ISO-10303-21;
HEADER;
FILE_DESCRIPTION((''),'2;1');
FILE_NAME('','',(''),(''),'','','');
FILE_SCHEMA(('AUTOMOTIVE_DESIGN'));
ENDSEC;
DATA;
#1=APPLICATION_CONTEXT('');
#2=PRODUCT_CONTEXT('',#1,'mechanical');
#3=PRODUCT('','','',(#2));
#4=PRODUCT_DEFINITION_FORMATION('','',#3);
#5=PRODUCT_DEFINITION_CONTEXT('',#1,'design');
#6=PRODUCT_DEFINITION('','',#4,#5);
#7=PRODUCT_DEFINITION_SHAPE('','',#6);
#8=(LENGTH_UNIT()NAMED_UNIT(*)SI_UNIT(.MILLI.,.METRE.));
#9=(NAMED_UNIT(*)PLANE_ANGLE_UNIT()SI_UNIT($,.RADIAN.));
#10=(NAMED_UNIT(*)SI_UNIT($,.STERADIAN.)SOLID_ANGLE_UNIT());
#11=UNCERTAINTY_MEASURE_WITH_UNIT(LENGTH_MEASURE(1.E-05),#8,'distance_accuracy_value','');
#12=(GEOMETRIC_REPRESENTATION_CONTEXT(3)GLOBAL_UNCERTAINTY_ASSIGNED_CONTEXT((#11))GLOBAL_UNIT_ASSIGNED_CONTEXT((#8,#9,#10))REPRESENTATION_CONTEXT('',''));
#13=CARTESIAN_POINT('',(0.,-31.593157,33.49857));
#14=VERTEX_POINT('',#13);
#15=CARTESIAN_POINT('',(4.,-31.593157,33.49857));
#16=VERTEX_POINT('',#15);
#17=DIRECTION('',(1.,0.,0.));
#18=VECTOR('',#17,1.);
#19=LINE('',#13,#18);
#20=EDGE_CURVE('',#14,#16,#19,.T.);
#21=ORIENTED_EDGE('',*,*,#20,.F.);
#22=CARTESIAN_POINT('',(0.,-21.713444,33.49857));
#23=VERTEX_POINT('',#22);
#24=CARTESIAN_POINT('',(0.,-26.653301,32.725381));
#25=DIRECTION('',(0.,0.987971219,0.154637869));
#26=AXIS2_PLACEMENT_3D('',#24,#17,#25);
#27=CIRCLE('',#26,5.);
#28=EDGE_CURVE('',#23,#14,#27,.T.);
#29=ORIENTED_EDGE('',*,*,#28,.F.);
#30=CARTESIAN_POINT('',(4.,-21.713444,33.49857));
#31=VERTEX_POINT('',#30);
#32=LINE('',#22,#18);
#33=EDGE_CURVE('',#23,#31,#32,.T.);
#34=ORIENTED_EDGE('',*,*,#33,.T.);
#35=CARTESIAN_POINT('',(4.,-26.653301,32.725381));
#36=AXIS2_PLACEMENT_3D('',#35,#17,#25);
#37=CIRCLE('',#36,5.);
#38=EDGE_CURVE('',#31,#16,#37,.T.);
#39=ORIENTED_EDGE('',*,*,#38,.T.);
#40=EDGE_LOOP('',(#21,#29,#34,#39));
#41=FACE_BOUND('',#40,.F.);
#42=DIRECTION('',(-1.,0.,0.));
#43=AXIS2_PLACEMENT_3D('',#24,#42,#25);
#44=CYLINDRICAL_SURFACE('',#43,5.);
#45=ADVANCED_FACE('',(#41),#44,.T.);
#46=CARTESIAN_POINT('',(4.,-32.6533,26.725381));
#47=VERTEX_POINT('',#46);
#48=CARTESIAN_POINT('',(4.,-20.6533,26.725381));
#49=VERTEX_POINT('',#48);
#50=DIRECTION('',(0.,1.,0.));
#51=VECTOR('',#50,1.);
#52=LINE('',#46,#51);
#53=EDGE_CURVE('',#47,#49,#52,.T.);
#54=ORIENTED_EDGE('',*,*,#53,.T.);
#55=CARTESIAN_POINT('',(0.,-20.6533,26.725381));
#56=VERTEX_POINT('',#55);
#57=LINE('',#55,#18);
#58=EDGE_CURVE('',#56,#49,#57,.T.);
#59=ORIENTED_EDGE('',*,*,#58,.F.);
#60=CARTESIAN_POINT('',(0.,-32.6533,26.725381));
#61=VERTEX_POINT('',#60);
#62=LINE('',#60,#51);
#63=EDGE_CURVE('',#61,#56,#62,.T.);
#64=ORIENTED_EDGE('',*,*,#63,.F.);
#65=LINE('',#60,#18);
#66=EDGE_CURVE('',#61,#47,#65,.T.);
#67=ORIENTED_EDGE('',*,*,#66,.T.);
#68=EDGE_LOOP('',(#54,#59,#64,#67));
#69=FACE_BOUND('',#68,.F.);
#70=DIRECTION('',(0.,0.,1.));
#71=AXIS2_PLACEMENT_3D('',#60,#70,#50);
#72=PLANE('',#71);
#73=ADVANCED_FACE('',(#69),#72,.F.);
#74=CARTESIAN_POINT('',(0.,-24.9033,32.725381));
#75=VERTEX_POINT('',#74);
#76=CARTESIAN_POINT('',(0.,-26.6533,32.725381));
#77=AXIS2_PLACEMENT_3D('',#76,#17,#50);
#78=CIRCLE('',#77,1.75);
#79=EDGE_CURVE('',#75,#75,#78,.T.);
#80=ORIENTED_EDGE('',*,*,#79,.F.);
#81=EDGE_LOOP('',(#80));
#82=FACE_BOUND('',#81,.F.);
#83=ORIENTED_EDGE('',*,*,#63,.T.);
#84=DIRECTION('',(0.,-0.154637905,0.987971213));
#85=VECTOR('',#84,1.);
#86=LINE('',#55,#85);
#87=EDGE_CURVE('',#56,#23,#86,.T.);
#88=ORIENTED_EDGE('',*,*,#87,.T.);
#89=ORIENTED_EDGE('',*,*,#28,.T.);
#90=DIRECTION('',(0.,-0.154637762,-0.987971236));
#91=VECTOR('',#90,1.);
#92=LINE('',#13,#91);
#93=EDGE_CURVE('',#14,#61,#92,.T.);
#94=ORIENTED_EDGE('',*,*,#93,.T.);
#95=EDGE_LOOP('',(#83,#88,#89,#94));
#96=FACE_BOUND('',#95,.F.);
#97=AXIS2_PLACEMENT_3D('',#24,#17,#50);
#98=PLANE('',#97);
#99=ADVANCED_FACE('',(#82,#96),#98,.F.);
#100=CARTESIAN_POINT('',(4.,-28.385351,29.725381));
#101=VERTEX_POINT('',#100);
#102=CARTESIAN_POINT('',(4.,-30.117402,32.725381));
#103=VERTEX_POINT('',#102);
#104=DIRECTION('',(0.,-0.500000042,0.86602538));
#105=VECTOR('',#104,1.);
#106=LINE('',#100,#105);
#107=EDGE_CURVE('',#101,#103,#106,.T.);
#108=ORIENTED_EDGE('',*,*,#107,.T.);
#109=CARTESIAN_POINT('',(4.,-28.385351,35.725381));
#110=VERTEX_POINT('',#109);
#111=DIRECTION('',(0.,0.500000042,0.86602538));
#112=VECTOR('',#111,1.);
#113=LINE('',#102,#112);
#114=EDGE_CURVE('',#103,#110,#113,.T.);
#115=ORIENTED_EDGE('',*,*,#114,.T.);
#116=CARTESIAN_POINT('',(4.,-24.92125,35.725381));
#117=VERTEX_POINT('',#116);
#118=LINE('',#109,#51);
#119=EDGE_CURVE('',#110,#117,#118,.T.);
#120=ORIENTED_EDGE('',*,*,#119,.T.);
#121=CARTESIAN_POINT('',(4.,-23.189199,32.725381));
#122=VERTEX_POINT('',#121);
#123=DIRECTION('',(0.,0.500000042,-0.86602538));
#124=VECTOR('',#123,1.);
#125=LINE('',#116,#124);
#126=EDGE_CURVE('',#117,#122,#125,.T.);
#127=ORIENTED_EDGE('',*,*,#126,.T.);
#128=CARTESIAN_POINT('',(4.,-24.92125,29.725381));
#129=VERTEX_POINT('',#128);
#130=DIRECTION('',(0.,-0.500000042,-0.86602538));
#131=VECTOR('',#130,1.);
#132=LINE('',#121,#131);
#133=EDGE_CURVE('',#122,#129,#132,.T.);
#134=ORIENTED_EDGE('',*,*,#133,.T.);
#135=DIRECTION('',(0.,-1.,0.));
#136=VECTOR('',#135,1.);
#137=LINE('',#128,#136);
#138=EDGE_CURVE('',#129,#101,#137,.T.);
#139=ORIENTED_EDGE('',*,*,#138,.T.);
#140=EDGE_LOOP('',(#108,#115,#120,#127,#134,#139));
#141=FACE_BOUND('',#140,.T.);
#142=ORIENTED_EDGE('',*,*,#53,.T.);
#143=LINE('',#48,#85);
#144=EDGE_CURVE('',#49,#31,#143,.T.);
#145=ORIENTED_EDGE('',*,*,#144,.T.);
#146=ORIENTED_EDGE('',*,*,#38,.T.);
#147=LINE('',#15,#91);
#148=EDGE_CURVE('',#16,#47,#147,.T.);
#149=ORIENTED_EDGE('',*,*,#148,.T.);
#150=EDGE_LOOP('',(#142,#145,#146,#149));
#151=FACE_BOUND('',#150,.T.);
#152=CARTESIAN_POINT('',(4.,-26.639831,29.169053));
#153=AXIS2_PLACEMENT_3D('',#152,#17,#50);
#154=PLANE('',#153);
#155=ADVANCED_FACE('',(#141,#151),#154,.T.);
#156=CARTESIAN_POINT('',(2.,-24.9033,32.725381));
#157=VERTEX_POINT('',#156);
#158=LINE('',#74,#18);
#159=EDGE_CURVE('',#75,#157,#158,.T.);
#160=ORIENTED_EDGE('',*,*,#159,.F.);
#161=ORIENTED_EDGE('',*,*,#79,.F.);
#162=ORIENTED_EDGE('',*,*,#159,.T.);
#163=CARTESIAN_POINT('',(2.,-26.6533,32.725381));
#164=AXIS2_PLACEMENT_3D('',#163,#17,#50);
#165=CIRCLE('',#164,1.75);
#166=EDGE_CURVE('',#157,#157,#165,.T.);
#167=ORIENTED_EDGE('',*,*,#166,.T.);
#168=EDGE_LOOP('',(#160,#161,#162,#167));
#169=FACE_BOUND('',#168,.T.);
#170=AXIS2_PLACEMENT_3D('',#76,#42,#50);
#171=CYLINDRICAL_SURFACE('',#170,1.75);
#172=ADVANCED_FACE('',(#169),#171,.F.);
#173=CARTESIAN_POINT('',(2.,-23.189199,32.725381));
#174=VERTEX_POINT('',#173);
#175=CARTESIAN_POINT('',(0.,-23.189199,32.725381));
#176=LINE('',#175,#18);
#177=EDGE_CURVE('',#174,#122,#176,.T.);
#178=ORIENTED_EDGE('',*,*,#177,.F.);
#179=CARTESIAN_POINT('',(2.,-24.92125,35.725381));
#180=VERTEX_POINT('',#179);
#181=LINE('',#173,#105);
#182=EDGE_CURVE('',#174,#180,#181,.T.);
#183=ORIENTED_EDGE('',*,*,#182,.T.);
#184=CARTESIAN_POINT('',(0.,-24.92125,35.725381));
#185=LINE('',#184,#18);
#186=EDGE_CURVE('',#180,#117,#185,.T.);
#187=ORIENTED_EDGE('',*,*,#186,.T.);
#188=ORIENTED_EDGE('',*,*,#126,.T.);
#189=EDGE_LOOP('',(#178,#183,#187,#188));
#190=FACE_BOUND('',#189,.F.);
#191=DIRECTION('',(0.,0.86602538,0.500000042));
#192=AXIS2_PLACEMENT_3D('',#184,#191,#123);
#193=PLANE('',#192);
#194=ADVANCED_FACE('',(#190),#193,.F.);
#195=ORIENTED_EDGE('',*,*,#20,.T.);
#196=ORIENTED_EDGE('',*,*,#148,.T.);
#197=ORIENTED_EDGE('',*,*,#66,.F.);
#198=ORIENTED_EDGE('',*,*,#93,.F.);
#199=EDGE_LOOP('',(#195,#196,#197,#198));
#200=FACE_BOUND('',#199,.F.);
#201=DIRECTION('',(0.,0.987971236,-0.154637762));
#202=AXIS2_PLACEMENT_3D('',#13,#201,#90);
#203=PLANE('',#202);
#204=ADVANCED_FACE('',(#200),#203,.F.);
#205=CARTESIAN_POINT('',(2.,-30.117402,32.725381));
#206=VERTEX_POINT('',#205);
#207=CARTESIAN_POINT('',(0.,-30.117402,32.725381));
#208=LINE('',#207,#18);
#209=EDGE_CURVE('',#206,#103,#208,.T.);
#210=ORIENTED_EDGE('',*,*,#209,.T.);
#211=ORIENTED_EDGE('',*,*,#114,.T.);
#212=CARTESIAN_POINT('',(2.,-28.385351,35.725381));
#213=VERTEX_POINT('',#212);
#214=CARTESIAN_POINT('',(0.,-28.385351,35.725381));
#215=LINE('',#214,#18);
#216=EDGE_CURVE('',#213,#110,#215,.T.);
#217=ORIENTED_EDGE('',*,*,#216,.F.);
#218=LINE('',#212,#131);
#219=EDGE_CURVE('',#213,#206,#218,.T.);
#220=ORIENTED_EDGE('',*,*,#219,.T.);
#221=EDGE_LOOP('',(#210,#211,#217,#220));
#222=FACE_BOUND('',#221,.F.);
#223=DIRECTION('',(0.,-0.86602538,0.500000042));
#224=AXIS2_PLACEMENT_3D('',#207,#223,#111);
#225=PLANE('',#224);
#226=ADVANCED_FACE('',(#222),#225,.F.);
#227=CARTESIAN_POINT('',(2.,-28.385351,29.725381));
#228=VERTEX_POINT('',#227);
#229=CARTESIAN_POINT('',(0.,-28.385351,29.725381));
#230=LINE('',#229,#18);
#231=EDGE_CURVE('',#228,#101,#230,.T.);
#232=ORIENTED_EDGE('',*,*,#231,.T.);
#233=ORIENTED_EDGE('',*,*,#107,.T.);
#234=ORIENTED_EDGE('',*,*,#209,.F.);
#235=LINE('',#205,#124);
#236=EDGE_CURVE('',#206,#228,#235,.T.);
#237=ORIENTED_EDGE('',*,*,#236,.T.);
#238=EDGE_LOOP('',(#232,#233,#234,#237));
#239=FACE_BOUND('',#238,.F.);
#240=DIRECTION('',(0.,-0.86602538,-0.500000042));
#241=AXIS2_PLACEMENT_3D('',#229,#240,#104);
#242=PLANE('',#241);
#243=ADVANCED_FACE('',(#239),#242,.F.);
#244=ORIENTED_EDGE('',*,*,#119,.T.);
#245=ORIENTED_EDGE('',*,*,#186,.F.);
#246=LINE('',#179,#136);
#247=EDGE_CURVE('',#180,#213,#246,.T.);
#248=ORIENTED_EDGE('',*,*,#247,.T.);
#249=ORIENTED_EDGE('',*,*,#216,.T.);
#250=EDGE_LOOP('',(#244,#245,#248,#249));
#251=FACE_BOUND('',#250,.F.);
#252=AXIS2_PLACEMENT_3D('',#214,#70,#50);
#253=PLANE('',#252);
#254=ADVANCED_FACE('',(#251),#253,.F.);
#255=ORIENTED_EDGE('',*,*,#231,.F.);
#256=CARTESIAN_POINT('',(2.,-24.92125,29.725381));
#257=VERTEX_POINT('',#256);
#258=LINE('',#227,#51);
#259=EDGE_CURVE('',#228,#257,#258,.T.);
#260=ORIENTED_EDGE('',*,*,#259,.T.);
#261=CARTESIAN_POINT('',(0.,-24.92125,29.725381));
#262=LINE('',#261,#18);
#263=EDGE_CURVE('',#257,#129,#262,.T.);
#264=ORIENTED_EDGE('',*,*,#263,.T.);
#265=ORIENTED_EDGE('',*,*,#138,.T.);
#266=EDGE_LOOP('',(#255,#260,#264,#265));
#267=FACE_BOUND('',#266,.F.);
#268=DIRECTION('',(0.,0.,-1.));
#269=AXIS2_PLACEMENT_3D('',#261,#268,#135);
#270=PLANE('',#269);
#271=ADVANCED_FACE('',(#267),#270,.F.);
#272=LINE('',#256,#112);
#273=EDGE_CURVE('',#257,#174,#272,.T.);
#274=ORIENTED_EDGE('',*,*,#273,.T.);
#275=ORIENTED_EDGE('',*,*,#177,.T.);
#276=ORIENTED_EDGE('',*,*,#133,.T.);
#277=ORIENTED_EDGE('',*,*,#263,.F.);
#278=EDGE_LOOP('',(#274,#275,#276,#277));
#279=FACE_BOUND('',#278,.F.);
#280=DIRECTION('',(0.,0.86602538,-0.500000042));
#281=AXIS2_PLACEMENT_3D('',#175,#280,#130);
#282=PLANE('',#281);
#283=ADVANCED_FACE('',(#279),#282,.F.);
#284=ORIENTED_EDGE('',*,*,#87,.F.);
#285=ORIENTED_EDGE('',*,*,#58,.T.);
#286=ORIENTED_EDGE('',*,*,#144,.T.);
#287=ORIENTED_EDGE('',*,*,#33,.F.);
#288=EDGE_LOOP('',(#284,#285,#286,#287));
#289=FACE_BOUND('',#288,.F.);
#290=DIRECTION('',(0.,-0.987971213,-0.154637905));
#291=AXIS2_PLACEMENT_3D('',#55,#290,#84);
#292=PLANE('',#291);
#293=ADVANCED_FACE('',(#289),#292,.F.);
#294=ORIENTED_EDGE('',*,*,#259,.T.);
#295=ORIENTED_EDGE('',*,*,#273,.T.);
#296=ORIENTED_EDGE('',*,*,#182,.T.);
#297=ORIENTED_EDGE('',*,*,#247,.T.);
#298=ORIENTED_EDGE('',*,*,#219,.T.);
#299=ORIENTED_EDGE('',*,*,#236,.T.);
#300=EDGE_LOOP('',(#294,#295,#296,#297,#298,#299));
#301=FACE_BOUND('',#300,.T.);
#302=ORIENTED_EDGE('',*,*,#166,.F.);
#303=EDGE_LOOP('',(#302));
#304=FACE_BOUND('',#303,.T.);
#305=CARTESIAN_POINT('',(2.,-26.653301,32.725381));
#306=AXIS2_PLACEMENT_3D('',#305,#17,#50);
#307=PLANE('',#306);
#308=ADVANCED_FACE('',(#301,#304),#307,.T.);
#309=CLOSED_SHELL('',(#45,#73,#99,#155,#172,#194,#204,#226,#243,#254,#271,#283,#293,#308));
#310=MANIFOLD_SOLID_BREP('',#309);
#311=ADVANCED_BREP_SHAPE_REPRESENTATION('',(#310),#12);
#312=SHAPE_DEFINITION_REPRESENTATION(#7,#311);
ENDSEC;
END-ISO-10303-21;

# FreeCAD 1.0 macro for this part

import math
import FreeCAD as App
import Part
import Sketcher
Q = App.Units.Quantity


def add_polygon(sketch, points):
    """Adds a closed chain of lines whose ends are joined by coincident constraints."""
    first, n = sketch.GeometryCount, len(points)
    for a, b in zip(points, points[1:] + points[:1]):
        sketch.addGeometry(Part.LineSegment(App.Vector(*a, 0), App.Vector(*b, 0)), False)
    for i in range(n):
        sketch.addConstraint(Sketcher.Constraint("Coincident", first + i, 2, first + (i + 1) % n, 1))

doc = App.newDocument("Part")
body = doc.addObject("PartDesign::Body", "Body")

# Sketch on YZ plane
sketch1 = doc.addObject("Sketcher::SketchObject", "Sketch")
body.addObject(sketch1)
sketch1.AttachmentSupport = (doc.YZ_Plane, [""])
sketch1.MapMode = "FlatFace"
sketch1.addGeometry(Part.LineSegment(App.Vector(-31.593157, 33.49857, 0), App.Vector(-32.6533, 26.725381, 0)), False)  # 0
sketch1.addGeometry(Part.LineSegment(App.Vector(-32.6533, 26.725381, 0), App.Vector(-20.6533, 26.725381, 0)), False)  # 1
sketch1.addGeometry(Part.LineSegment(App.Vector(-20.6533, 26.725381, 0), App.Vector(-21.713444, 33.49857, 0)), False)  # 2
sketch1.addGeometry(Part.ArcOfCircle(Part.Circle(App.Vector(-26.653301, 32.725381, 0), App.Vector(0, 0, 1), 5), math.radians(8.895794), math.radians(171.104206)), False)  # 3
add_polygon(sketch1, [(-24.92125, 29.725381), (-28.385351, 29.725381), (-30.117402, 32.725381), (-28.385351, 35.725381), (-24.92125, 35.725381), (-23.189199, 32.725381)])  # lines 4-9
sketch1.addConstraint([
    Sketcher.Constraint("Coincident", 0, 2, 1, 1),
    Sketcher.Constraint("Coincident", 1, 2, 2, 1),
    Sketcher.Constraint("Tangent", 2, 2, 3, 1),
    Sketcher.Constraint("Tangent", 3, 2, 0, 1),
    Sketcher.Constraint("Horizontal", 1),
    Sketcher.Constraint("Horizontal", 4),
    Sketcher.Constraint("Horizontal", 7),
    Sketcher.Constraint("Parallel", 5, 8),
    Sketcher.Constraint("Parallel", 6, 9),
    Sketcher.Constraint("Horizontal", 2, 2, 3, 2),
    Sketcher.Constraint("Horizontal", 3, 3, 5, 2),
    Sketcher.Constraint("Horizontal", 5, 2, 8, 2),
    Sketcher.Constraint("Vertical", 4, 2, 6, 2),
    Sketcher.Constraint("Vertical", 7, 2, 9, 2),
    Sketcher.Constraint("Radius", 3, 5.0),
    Sketcher.Constraint("DistanceX", 1, 1, 1, 2, 12.0),
    Sketcher.Constraint("Angle", 5, Q("120.000003 deg")),
    Sketcher.Constraint("DistanceY", 0, 2, 3, 3, 6.0),
    Sketcher.Constraint("DistanceY", 4, 2, 3, 3, 3.0),
    Sketcher.Constraint("DistanceX", 4, 2, 4, 1, 3.464101),
    Sketcher.Constraint("DistanceX", 3, 3, -1, 1, 26.653301),
    Sketcher.Constraint("DistanceX", 5, 2, -1, 1, 30.117402),
    Sketcher.Constraint("DistanceY", -1, 1, 3, 3, 32.725381),
])
pad1 = doc.addObject("PartDesign::Pad", "Pad")
body.addObject(pad1)
pad1.Profile = sketch1
pad1.Length = 4

# Sketch on YZ plane
sketch2 = doc.addObject("Sketcher::SketchObject", "Sketch001")
body.addObject(sketch2)
sketch2.AttachmentSupport = (doc.YZ_Plane, [""])
sketch2.MapMode = "FlatFace"
add_polygon(sketch2, [(-28.385351, 35.725381), (-30.117402, 32.725381), (-28.385351, 29.725381), (-24.92125, 29.725381), (-23.189199, 32.725381), (-24.92125, 35.725381)])  # lines 0-5
sketch2.addGeometry(Part.Circle(App.Vector(-26.6533, 32.725381, 0), App.Vector(0, 0, 1), 1.75), False)  # 6
sketch2.addConstraint([
    Sketcher.Constraint("Horizontal", 2),
    Sketcher.Constraint("Horizontal", 5),
    Sketcher.Constraint("Parallel", 0, 3),
    Sketcher.Constraint("Parallel", 1, 4),
    Sketcher.Constraint("Horizontal", 6, 3, 0, 2),
    Sketcher.Constraint("Horizontal", 0, 2, 3, 2),
    Sketcher.Constraint("Vertical", 2, 2, 4, 2),
    Sketcher.Constraint("Vertical", 1, 2, 5, 2),
    Sketcher.Constraint("Diameter", 6, 3.5),
    Sketcher.Constraint("Angle", 0, Q("-120.000003 deg")),
    Sketcher.Constraint("DistanceY", 1, 2, 6, 3, 3.0),
    Sketcher.Constraint("DistanceX", 2, 1, 2, 2, 3.464101),
    Sketcher.Constraint("DistanceX", 6, 3, -1, 1, 26.6533),
    Sketcher.Constraint("DistanceX", 0, 2, -1, 1, 30.117402),
    Sketcher.Constraint("DistanceY", -1, 1, 6, 3, 32.725381),
])
pad2 = doc.addObject("PartDesign::Pad", "Pad001")
body.addObject(pad2)
pad2.Profile = sketch2
pad2.Length = 2

doc.recompute()
